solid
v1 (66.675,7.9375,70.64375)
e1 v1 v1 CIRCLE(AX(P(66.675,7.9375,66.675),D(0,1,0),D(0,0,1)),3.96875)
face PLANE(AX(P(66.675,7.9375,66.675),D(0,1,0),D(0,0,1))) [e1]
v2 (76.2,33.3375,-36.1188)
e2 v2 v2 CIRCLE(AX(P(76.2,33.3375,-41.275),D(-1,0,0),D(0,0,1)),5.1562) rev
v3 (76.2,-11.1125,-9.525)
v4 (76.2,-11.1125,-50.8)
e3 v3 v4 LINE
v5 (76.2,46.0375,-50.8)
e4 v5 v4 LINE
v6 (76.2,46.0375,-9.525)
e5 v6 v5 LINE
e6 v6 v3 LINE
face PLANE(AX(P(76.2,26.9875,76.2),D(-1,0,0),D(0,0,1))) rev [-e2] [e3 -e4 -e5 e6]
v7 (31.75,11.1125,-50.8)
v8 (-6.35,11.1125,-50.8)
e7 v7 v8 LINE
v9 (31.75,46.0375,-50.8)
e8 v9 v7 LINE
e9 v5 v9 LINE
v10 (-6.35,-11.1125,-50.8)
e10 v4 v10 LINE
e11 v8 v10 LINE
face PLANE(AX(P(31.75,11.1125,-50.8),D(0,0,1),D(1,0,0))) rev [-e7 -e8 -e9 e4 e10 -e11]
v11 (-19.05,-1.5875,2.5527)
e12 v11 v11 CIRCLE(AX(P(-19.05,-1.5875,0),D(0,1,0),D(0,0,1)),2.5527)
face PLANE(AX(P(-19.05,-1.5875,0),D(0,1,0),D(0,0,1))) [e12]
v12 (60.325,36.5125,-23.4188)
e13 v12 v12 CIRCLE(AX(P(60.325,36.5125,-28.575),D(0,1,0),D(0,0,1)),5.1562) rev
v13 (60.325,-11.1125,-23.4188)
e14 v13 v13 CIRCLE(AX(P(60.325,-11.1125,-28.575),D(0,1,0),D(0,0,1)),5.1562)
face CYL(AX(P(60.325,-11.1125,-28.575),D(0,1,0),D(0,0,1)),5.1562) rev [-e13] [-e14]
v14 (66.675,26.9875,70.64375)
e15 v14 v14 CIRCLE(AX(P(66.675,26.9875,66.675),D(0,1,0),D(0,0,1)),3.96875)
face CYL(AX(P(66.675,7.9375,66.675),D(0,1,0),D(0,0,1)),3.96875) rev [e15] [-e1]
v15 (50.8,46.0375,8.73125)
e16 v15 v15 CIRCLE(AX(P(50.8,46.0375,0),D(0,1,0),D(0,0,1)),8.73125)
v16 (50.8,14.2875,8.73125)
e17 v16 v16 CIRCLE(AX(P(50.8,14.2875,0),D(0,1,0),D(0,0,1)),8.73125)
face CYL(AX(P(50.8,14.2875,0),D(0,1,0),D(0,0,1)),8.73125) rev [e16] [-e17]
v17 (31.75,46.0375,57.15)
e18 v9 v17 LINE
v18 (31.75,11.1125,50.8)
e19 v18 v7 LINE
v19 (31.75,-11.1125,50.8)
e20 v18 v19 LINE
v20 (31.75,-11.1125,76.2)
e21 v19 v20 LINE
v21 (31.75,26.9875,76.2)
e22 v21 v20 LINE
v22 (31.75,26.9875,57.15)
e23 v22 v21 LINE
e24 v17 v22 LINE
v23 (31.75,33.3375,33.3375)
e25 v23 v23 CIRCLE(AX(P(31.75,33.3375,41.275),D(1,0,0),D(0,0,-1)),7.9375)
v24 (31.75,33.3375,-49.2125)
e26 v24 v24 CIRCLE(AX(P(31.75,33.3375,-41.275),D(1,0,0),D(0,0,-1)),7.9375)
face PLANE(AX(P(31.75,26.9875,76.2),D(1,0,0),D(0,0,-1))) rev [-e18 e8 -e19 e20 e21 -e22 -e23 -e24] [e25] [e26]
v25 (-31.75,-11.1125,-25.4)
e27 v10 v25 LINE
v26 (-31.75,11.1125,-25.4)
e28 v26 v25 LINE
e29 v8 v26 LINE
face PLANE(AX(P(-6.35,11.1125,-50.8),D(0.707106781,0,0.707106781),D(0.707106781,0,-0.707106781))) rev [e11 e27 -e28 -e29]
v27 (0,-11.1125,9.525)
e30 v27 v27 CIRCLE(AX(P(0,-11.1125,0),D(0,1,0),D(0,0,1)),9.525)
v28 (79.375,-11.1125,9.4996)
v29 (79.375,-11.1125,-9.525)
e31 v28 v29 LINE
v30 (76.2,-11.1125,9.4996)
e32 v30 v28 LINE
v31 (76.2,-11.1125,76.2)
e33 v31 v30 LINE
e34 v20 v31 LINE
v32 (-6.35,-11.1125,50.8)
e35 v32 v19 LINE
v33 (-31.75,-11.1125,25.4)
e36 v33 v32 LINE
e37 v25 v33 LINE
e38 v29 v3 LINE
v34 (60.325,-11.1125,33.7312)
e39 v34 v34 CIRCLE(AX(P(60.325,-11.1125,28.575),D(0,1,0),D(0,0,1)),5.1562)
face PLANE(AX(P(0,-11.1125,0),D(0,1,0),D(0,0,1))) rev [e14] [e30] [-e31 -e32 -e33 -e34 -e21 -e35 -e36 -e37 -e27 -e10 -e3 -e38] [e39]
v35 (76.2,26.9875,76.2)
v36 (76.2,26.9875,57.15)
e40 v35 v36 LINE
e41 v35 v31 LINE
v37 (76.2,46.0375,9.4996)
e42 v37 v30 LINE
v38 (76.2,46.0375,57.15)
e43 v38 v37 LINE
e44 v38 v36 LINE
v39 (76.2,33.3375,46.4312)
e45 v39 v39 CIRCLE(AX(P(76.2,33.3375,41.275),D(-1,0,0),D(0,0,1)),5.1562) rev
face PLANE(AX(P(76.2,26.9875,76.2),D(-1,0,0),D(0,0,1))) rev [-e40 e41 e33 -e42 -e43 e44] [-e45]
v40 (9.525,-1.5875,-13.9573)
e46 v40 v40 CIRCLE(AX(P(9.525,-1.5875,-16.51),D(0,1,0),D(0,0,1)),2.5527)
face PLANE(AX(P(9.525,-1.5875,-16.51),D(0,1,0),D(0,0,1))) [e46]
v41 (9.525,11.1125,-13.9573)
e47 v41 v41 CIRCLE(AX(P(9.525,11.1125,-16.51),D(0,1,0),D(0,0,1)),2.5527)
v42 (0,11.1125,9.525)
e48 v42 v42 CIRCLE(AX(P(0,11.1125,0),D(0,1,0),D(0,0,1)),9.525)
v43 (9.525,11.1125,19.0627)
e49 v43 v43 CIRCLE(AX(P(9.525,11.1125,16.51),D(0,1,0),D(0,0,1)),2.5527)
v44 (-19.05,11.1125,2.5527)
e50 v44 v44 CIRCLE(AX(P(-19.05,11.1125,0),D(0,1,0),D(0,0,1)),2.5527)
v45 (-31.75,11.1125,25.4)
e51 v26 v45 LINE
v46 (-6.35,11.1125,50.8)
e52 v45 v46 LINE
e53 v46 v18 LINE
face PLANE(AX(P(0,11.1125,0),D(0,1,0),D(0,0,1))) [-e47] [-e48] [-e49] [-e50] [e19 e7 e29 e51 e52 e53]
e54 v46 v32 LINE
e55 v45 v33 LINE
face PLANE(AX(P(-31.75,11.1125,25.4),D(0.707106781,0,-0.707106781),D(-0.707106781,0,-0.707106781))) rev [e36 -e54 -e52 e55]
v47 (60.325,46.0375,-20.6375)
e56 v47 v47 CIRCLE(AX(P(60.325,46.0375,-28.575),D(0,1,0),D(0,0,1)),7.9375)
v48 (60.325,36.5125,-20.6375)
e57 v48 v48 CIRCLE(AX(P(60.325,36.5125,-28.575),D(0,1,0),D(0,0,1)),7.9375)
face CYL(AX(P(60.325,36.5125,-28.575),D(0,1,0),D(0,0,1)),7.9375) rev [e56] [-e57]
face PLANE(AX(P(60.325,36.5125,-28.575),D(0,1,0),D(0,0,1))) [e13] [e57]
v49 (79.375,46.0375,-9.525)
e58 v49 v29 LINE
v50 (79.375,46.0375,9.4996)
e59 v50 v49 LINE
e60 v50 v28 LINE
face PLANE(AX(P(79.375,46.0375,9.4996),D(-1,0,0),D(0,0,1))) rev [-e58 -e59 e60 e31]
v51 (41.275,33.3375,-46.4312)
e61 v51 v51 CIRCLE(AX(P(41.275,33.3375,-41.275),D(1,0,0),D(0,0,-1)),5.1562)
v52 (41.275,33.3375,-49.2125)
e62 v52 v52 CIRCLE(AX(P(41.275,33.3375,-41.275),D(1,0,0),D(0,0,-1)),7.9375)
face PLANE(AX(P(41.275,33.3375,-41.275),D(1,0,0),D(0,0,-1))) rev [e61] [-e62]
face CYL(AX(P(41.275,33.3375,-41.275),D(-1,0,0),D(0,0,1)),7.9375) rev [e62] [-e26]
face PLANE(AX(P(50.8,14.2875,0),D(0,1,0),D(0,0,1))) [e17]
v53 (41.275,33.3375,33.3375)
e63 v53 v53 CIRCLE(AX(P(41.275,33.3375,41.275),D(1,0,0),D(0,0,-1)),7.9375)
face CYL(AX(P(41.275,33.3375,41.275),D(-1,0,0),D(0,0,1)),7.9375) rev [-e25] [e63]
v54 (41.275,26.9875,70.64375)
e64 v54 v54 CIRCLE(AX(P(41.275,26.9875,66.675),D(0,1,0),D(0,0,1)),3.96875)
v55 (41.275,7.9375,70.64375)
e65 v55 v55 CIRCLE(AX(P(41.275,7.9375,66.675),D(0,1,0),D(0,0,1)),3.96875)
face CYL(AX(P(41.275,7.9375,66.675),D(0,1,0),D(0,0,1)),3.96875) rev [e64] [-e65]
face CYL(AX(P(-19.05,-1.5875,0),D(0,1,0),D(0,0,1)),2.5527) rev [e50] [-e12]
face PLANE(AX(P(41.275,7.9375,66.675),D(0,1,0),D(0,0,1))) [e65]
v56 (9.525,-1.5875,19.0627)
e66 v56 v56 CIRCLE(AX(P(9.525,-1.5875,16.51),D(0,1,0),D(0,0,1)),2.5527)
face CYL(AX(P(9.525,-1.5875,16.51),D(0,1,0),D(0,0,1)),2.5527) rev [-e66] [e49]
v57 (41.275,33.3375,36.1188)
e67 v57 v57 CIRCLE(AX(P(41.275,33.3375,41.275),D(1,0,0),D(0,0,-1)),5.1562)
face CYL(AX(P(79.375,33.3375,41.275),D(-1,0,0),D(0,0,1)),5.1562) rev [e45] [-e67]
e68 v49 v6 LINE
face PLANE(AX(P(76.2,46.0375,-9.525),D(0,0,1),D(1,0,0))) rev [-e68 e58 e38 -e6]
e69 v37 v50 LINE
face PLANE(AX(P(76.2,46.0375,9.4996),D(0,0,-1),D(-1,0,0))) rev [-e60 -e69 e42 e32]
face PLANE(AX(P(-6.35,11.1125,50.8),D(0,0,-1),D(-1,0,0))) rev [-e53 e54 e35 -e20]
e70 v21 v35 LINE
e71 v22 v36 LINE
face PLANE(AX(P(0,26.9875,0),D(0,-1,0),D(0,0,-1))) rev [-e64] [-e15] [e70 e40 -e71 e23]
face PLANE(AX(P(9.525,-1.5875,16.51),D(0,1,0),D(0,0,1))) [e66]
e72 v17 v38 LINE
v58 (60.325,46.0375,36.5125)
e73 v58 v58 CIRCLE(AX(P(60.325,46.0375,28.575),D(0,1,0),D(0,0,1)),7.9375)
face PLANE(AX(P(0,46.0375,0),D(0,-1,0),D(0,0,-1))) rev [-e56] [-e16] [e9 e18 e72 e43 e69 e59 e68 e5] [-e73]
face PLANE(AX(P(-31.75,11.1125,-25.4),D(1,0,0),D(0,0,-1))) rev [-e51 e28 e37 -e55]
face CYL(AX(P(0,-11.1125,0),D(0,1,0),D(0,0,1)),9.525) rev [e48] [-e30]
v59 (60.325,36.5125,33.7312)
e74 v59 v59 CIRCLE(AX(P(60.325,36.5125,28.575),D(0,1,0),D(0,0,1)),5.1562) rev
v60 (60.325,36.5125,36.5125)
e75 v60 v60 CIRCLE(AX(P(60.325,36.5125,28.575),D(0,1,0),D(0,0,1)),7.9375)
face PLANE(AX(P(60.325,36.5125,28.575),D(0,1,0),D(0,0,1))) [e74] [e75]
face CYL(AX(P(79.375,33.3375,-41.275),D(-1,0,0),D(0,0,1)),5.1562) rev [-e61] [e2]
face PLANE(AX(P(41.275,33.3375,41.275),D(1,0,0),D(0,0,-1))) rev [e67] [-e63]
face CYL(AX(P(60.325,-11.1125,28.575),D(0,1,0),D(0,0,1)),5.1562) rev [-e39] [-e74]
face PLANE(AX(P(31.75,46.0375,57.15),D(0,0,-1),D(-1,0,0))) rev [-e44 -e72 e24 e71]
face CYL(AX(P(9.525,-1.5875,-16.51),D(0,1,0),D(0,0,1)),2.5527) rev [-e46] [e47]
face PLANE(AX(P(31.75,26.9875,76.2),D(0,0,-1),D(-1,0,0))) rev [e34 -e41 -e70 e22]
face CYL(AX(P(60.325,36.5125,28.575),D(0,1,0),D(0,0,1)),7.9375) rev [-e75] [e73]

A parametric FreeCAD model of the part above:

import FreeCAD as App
import Part
import Sketcher
from FreeCAD import Vector
Q = App.Units.Quantity


def add_polygon(sketch, points):
    """Adds a closed chain of lines whose ends are joined by coincident constraints."""
    first, n = sketch.GeometryCount, len(points)
    for a, b in zip(points, points[1:] + points[:1]):
        sketch.addGeometry(Part.LineSegment(App.Vector(*a, 0), App.Vector(*b, 0)), False)
    for i in range(n):
        sketch.addConstraint(Sketcher.Constraint("Coincident", first + i, 2, first + (i + 1) % n, 1))

doc = App.newDocument("Part")
params = doc.addObject("Spreadsheet::Sheet", "Params")
for row, (alias, value) in enumerate([
    ("sketch1_height", "4 in"),
    ("sketch1_height2", "2 in"),
    ("sketch1_width", "1.5 in"),
    ("pad1_length", "0.875 in"),
    ("sketch2_height", "5 in"),
    ("sketch2_width", "1.75 in"),
    ("pad2_length", "1.5 in"),
    ("sketch3_width", "1.75 in"),
    ("sketch3_height", "4.25 in"),
    ("pad3_length", "0.75 in"),
    ("sketch4_width", "0.125 in"),
    ("sketch4_height", "0.749 in"),
    ("pad4_length", "2.25 in"),
    ("sketch5_diameter", "0.75 in"),
    ("sketch6_diameter", "0.201 in"),
    ("pocket2_length", "0.5 in"),
    ("sketch7_diameter", "0.201 in"),
    ("pocket3_length", "0.5 in"),
    ("sketch8_diameter", "0.6875 in"),
    ("pocket4_length", "1.25 in"),
    ("sketch9_diameter", "0.3125 in"),
    ("pocket5_length", "0.75 in"),
    ("sketch10_diameter", "0.406 in"),
    ("sketch11_diameter", "0.625 in"),
    ("pocket7_length", "0.375 in"),
    ("sketch12_diameter", "0.406 in"),
    ("sketch13_diameter", "0.625 in"),
    ("pocket9_length", "0.375 in"),
], start=1):
    params.set(f"A{row}", alias)
    params.set(f"B{row}", "=" + value)
    params.setAlias(f"B{row}", alias)

body = doc.addObject("PartDesign::Body", "Body")

# Sketch on XZ plane
sketch1 = body.newObject("Sketcher::SketchObject", "Sketch")
sketch1.AttachmentSupport = (doc.getObject("XZ_Plane"), [""])
sketch1.MapMode = "FlatFace"
add_polygon(sketch1, [(-32, 25), (-6, 51), (32, 51), (32, -51), (-6, -51), (-32, -25)])  # lines 0-5
sketch1.addConstraint([
    Sketcher.Constraint("Horizontal", 1),
    Sketcher.Constraint("Vertical", 2),
    Sketcher.Constraint("Horizontal", 3),
    Sketcher.Constraint("Vertical", 5),
    Sketcher.Constraint("Symmetric", 0, 2, 3, 2, -1),
    Sketcher.Constraint("Perpendicular", 0, 4),
    Sketcher.Constraint("Equal", 0, 4),
    Sketcher.Constraint("DistanceY", 2, 2, 2, 1, Q("4 in")),
    Sketcher.Constraint("DistanceY", 5, 1, 5, 2, Q("2 in")),
    Sketcher.Constraint("DistanceX", 1, 1, 1, 2, Q("1.5 in")),
    Sketcher.Constraint("DistanceX", 0, 2, -1, 1, Q("0.25 in")),
])
sketch1.setExpression("Constraints[13]", "Params.sketch1_height")
sketch1.setExpression("Constraints[14]", "Params.sketch1_height2")
sketch1.setExpression("Constraints[15]", "Params.sketch1_width")
pad1 = body.newObject("PartDesign::Pad", "Pad")
pad1.Profile = sketch1
pad1.setExpression("Length", "Params.pad1_length")
pad1.Midplane = True

# Sketch on XZ plane
sketch2 = body.newObject("Sketcher::SketchObject", "Sketch001")
sketch2.AttachmentSupport = (doc.getObject("XZ_Plane"), [""])
sketch2.MapMode = "FlatFace"
sketch2.AttachmentOffset = App.Placement(Vector(0, 0, 0.4375 * 25.4), App.Rotation())
add_polygon(sketch2, [(32, -51), (32, 76), (76, 76), (76, -51)])  # lines 0-3
sketch2.addConstraint([
    Sketcher.Constraint("Vertical", 0),
    Sketcher.Constraint("Horizontal", 1),
    Sketcher.Constraint("Vertical", 2),
    Sketcher.Constraint("Horizontal", 3),
    Sketcher.Constraint("DistanceY", 0, 1, 0, 2, Q("5 in")),
    Sketcher.Constraint("DistanceY", -1, 1, 0, 2, Q("3 in")),
    Sketcher.Constraint("DistanceX", -1, 1, 1, 2, Q("3 in")),
    Sketcher.Constraint("DistanceX", 1, 1, 1, 2, Q("1.75 in")),
])
sketch2.setExpression("Constraints[8]", "Params.sketch2_height")
sketch2.setExpression("Constraints[11]", "Params.sketch2_width")
pad2 = body.newObject("PartDesign::Pad", "Pad001")
pad2.Profile = sketch2
pad2.setExpression("Length", "Params.pad2_length")
pad2.Reversed = True

# Sketch on XZ plane
sketch3 = body.newObject("Sketcher::SketchObject", "Sketch002")
sketch3.AttachmentSupport = (doc.getObject("XZ_Plane"), [""])
sketch3.MapMode = "FlatFace"
sketch3.AttachmentOffset = App.Placement(Vector(0, 0, -1.0625 * 25.4), App.Rotation())
add_polygon(sketch3, [(32, -51), (32, 57), (76, 57), (76, -51)])  # lines 0-3
sketch3.addConstraint([
    Sketcher.Constraint("Vertical", 0),
    Sketcher.Constraint("Horizontal", 1),
    Sketcher.Constraint("Vertical", 2),
    Sketcher.Constraint("Horizontal", 3),
    Sketcher.Constraint("DistanceX", -1, 1, 1, 2, Q("3 in")),
    Sketcher.Constraint("DistanceY", 2, 2, -1, 1, Q("2 in")),
    Sketcher.Constraint("DistanceX", 1, 1, 1, 2, Q("1.75 in")),
    Sketcher.Constraint("DistanceY", 0, 1, 0, 2, Q("4.25 in")),
])
sketch3.setExpression("Constraints[10]", "Params.sketch3_width")
sketch3.setExpression("Constraints[11]", "Params.sketch3_height")
pad3 = body.newObject("PartDesign::Pad", "Pad002")
pad3.Profile = sketch3
pad3.setExpression("Length", "Params.pad3_length")
pad3.Reversed = True

# Sketch on XZ plane
sketch4 = body.newObject("Sketcher::SketchObject", "Sketch003")
sketch4.AttachmentSupport = (doc.getObject("XZ_Plane"), [""])
sketch4.MapMode = "FlatFace"
sketch4.AttachmentOffset = App.Placement(Vector(0, 0, 0.4375 * 25.4), App.Rotation())
add_polygon(sketch4, [(76.2, -9.5), (76.2, 9.5), (79.4, 9.5), (79.4, -9.5)])  # lines 0-3
sketch4.addConstraint([
    Sketcher.Constraint("Vertical", 0),
    Sketcher.Constraint("Horizontal", 1),
    Sketcher.Constraint("Vertical", 2),
    Sketcher.Constraint("Horizontal", 3),
    Sketcher.Constraint("DistanceX", -1, 1, 0, 2, Q("3 in")),
    Sketcher.Constraint("DistanceX", 1, 1, 1, 2, Q("0.125 in")),
    Sketcher.Constraint("DistanceY", 0, 1, 0, 2, Q("0.749 in")),
    Sketcher.Constraint("DistanceY", -1, 1, 0, 2, Q("0.374 in")),
])
sketch4.setExpression("Constraints[9]", "Params.sketch4_width")
sketch4.setExpression("Constraints[10]", "Params.sketch4_height")
pad4 = body.newObject("PartDesign::Pad", "Pad003")
pad4.Profile = sketch4
pad4.setExpression("Length", "Params.pad4_length")
pad4.Reversed = True

# Sketch on XZ plane
sketch5 = body.newObject("Sketcher::SketchObject", "Sketch004")
sketch5.AttachmentSupport = (doc.getObject("XZ_Plane"), [""])
sketch5.MapMode = "FlatFace"
sketch5.AttachmentOffset = App.Placement(Vector(0, 0, -0.4375 * 25.4), App.Rotation())
sketch5.addGeometry(Part.Circle(Vector(0, 0, 0), Vector(0, 0, 1), 10), False)
sketch5.addConstraint([
    Sketcher.Constraint("Coincident", 0, 3, -1, 1),
    Sketcher.Constraint("Diameter", 0, Q("0.75 in")),
])
sketch5.setExpression("Constraints[1]", "Params.sketch5_diameter")
pocket1 = body.newObject("PartDesign::Pocket", "Pocket")
pocket1.Profile = sketch5
pocket1.Type = "ThroughAll"
pocket1.Reversed = True

# Sketch on XZ plane
sketch6 = body.newObject("Sketcher::SketchObject", "Sketch005")
sketch6.AttachmentSupport = (doc.getObject("XZ_Plane"), [""])
sketch6.MapMode = "FlatFace"
sketch6.AttachmentOffset = App.Placement(Vector(0, 0, -0.4375 * 25.4), App.Rotation())
sketch6.addGeometry([
    Part.Circle(Vector(-19.1, 0, 0), Vector(0, 0, 1), 2.6),
    Part.Circle(Vector(9.5, 16.5, 0), Vector(0, 0, 1), 2.6),
], False)
sketch6.addConstraint([
    Sketcher.Constraint("Equal", 0, 1),
    Sketcher.Constraint("PointOnObject", 0, 3, -1),
    Sketcher.Constraint("Diameter", 0, Q("0.201 in")),
    Sketcher.Constraint("DistanceX", 0, 3, -1, 1, Q("0.75 in")),
    Sketcher.Constraint("DistanceY", -1, 1, 1, 3, Q("0.65 in")),
    Sketcher.Constraint("DistanceX", -1, 1, 1, 3, Q("0.375 in")),
])
sketch6.setExpression("Constraints[2]", "Params.sketch6_diameter")
pocket2 = body.newObject("PartDesign::Pocket", "Pocket001")
pocket2.Profile = sketch6
pocket2.setExpression("Length", "Params.pocket2_length")
pocket2.Reversed = True

# Sketch on XZ plane
sketch7 = body.newObject("Sketcher::SketchObject", "Sketch006")
sketch7.AttachmentSupport = (doc.getObject("XZ_Plane"), [""])
sketch7.MapMode = "FlatFace"
sketch7.AttachmentOffset = App.Placement(Vector(0, 0, -0.4375 * 25.4), App.Rotation())
sketch7.addGeometry(Part.Circle(Vector(9.5, -16.5, 0), Vector(0, 0, 1), 2.6), False)
sketch7.addConstraint([
    Sketcher.Constraint("Diameter", 0, Q("0.201 in")),
    Sketcher.Constraint("DistanceY", 0, 3, -1, 1, Q("0.65 in")),
    Sketcher.Constraint("DistanceX", -1, 1, 0, 3, Q("0.375 in")),
])
sketch7.setExpression("Constraints[0]", "Params.sketch7_diameter")
pocket3 = body.newObject("PartDesign::Pocket", "Pocket002")
pocket3.Profile = sketch7
pocket3.setExpression("Length", "Params.pocket3_length")
pocket3.Reversed = True

# Sketch on XZ plane
sketch8 = body.newObject("Sketcher::SketchObject", "Sketch007")
sketch8.AttachmentSupport = (doc.getObject("XZ_Plane"), [""])
sketch8.MapMode = "FlatFace"
sketch8.AttachmentOffset = App.Placement(Vector(0, 0, -1.8125 * 25.4), App.Rotation())
sketch8.addGeometry(Part.Circle(Vector(51, 0, 0), Vector(0, 0, 1), 9), False)
sketch8.addConstraint([
    Sketcher.Constraint("PointOnObject", 0, 3, -1),
    Sketcher.Constraint("Diameter", 0, Q("0.6875 in")),
    Sketcher.Constraint("DistanceX", -1, 1, 0, 3, Q("2 in")),
])
sketch8.setExpression("Constraints[1]", "Params.sketch8_diameter")
pocket4 = body.newObject("PartDesign::Pocket", "Pocket003")
pocket4.Profile = sketch8
pocket4.setExpression("Length", "Params.pocket4_length")
pocket4.Reversed = True

# Sketch on XZ plane
sketch9 = body.newObject("Sketcher::SketchObject", "Sketch008")
sketch9.AttachmentSupport = (doc.getObject("XZ_Plane"), [""])
sketch9.MapMode = "FlatFace"
sketch9.AttachmentOffset = App.Placement(Vector(0, 0, -1.0625 * 25.4), App.Rotation())
sketch9.addGeometry([
    Part.Circle(Vector(41.3, 66.7, 0), Vector(0, 0, 1), 4),
    Part.Circle(Vector(66.7, 66.7, 0), Vector(0, 0, 1), 4),
], False)
sketch9.addConstraint([
    Sketcher.Constraint("Equal", 0, 1),
    Sketcher.Constraint("Horizontal", 0, 3, 1, 3),
    Sketcher.Constraint("Diameter", 0, Q("0.3125 in")),
    Sketcher.Constraint("DistanceX", 0, 3, 1, 3, Q("1 in")),
    Sketcher.Constraint("DistanceX", -1, 1, 0, 3, Q("1.625 in")),
    Sketcher.Constraint("DistanceY", -1, 1, 0, 3, Q("2.625 in")),
])
sketch9.setExpression("Constraints[2]", "Params.sketch9_diameter")
pocket5 = body.newObject("PartDesign::Pocket", "Pocket004")
pocket5.Profile = sketch9
pocket5.setExpression("Length", "Params.pocket5_length")
pocket5.Reversed = True

# Sketch on XZ plane
sketch10 = body.newObject("Sketcher::SketchObject", "Sketch009")
sketch10.AttachmentSupport = (doc.getObject("XZ_Plane"), [""])
sketch10.MapMode = "FlatFace"
sketch10.AttachmentOffset = App.Placement(Vector(0, 0, -1.8125 * 25.4), App.Rotation())
sketch10.addGeometry([
    Part.Circle(Vector(60, 29, 0), Vector(0, 0, 1), 5),
    Part.Circle(Vector(60, -29, 0), Vector(0, 0, 1), 5),
], False)
sketch10.addConstraint([
    Sketcher.Constraint("Equal", 0, 1),
    Sketcher.Constraint("Symmetric", 0, 3, 1, 3, -1),
    Sketcher.Constraint("Diameter", 0, Q("0.406 in")),
    Sketcher.Constraint("DistanceY", 1, 3, 0, 3, Q("2.25 in")),
    Sketcher.Constraint("DistanceX", -1, 1, 0, 3, Q("2.375 in")),
])
sketch10.setExpression("Constraints[2]", "Params.sketch10_diameter")
pocket6 = body.newObject("PartDesign::Pocket", "Pocket005")
pocket6.Profile = sketch10
pocket6.Type = "ThroughAll"
pocket6.Reversed = True

# Sketch on XZ plane
sketch11 = body.newObject("Sketcher::SketchObject", "Sketch010")
sketch11.AttachmentSupport = (doc.getObject("XZ_Plane"), [""])
sketch11.MapMode = "FlatFace"
sketch11.AttachmentOffset = App.Placement(Vector(0, 0, -1.8125 * 25.4), App.Rotation())
sketch11.addGeometry([
    Part.Circle(Vector(60, 29, 0), Vector(0, 0, 1), 8),
    Part.Circle(Vector(60, -29, 0), Vector(0, 0, 1), 8),
], False)
sketch11.addConstraint([
    Sketcher.Constraint("Equal", 0, 1),
    Sketcher.Constraint("Symmetric", 0, 3, 1, 3, -1),
    Sketcher.Constraint("Diameter", 0, Q("0.625 in")),
    Sketcher.Constraint("DistanceY", 1, 3, 0, 3, Q("2.25 in")),
    Sketcher.Constraint("DistanceX", -1, 1, 0, 3, Q("2.375 in")),
])
sketch11.setExpression("Constraints[2]", "Params.sketch11_diameter")
pocket7 = body.newObject("PartDesign::Pocket", "Pocket006")
pocket7.Profile = sketch11
pocket7.setExpression("Length", "Params.pocket7_length")
pocket7.Reversed = True

# Sketch on YZ plane
sketch12 = body.newObject("Sketcher::SketchObject", "Sketch011")
sketch12.AttachmentSupport = (doc.getObject("YZ_Plane"), [""])
sketch12.MapMode = "FlatFace"
sketch12.AttachmentOffset = App.Placement(Vector(0, 0, 1.25 * 25.4), App.Rotation())
sketch12.addGeometry([
    Part.Circle(Vector(33, 41, 0), Vector(0, 0, 1), 5),
    Part.Circle(Vector(33, -41, 0), Vector(0, 0, 1), 5),
], False)
sketch12.addConstraint([
    Sketcher.Constraint("Equal", 0, 1),
    Sketcher.Constraint("Symmetric", 0, 3, 1, 3, -1),
    Sketcher.Constraint("Diameter", 0, Q("0.406 in")),
    Sketcher.Constraint("DistanceY", 1, 3, 0, 3, Q("3.25 in")),
    Sketcher.Constraint("DistanceX", -1, 1, 0, 3, Q("1.3125 in")),
])
sketch12.setExpression("Constraints[2]", "Params.sketch12_diameter")
pocket8 = body.newObject("PartDesign::Pocket", "Pocket007")
pocket8.Profile = sketch12
pocket8.Type = "ThroughAll"
pocket8.Reversed = True

# Sketch on YZ plane
sketch13 = body.newObject("Sketcher::SketchObject", "Sketch012")
sketch13.AttachmentSupport = (doc.getObject("YZ_Plane"), [""])
sketch13.MapMode = "FlatFace"
sketch13.AttachmentOffset = App.Placement(Vector(0, 0, 1.25 * 25.4), App.Rotation())
sketch13.addGeometry([
    Part.Circle(Vector(33, 41, 0), Vector(0, 0, 1), 8),
    Part.Circle(Vector(33, -41, 0), Vector(0, 0, 1), 8),
], False)
sketch13.addConstraint([
    Sketcher.Constraint("Equal", 0, 1),
    Sketcher.Constraint("Symmetric", 0, 3, 1, 3, -1),
    Sketcher.Constraint("Diameter", 0, Q("0.625 in")),
    Sketcher.Constraint("DistanceY", 1, 3, 0, 3, Q("3.25 in")),
    Sketcher.Constraint("DistanceX", -1, 1, 0, 3, Q("1.3125 in")),
])
sketch13.setExpression("Constraints[2]", "Params.sketch13_diameter")
pocket9 = body.newObject("PartDesign::Pocket", "Pocket008")
pocket9.Profile = sketch13
pocket9.setExpression("Length", "Params.pocket9_length")
pocket9.Reversed = True

doc.recompute()
